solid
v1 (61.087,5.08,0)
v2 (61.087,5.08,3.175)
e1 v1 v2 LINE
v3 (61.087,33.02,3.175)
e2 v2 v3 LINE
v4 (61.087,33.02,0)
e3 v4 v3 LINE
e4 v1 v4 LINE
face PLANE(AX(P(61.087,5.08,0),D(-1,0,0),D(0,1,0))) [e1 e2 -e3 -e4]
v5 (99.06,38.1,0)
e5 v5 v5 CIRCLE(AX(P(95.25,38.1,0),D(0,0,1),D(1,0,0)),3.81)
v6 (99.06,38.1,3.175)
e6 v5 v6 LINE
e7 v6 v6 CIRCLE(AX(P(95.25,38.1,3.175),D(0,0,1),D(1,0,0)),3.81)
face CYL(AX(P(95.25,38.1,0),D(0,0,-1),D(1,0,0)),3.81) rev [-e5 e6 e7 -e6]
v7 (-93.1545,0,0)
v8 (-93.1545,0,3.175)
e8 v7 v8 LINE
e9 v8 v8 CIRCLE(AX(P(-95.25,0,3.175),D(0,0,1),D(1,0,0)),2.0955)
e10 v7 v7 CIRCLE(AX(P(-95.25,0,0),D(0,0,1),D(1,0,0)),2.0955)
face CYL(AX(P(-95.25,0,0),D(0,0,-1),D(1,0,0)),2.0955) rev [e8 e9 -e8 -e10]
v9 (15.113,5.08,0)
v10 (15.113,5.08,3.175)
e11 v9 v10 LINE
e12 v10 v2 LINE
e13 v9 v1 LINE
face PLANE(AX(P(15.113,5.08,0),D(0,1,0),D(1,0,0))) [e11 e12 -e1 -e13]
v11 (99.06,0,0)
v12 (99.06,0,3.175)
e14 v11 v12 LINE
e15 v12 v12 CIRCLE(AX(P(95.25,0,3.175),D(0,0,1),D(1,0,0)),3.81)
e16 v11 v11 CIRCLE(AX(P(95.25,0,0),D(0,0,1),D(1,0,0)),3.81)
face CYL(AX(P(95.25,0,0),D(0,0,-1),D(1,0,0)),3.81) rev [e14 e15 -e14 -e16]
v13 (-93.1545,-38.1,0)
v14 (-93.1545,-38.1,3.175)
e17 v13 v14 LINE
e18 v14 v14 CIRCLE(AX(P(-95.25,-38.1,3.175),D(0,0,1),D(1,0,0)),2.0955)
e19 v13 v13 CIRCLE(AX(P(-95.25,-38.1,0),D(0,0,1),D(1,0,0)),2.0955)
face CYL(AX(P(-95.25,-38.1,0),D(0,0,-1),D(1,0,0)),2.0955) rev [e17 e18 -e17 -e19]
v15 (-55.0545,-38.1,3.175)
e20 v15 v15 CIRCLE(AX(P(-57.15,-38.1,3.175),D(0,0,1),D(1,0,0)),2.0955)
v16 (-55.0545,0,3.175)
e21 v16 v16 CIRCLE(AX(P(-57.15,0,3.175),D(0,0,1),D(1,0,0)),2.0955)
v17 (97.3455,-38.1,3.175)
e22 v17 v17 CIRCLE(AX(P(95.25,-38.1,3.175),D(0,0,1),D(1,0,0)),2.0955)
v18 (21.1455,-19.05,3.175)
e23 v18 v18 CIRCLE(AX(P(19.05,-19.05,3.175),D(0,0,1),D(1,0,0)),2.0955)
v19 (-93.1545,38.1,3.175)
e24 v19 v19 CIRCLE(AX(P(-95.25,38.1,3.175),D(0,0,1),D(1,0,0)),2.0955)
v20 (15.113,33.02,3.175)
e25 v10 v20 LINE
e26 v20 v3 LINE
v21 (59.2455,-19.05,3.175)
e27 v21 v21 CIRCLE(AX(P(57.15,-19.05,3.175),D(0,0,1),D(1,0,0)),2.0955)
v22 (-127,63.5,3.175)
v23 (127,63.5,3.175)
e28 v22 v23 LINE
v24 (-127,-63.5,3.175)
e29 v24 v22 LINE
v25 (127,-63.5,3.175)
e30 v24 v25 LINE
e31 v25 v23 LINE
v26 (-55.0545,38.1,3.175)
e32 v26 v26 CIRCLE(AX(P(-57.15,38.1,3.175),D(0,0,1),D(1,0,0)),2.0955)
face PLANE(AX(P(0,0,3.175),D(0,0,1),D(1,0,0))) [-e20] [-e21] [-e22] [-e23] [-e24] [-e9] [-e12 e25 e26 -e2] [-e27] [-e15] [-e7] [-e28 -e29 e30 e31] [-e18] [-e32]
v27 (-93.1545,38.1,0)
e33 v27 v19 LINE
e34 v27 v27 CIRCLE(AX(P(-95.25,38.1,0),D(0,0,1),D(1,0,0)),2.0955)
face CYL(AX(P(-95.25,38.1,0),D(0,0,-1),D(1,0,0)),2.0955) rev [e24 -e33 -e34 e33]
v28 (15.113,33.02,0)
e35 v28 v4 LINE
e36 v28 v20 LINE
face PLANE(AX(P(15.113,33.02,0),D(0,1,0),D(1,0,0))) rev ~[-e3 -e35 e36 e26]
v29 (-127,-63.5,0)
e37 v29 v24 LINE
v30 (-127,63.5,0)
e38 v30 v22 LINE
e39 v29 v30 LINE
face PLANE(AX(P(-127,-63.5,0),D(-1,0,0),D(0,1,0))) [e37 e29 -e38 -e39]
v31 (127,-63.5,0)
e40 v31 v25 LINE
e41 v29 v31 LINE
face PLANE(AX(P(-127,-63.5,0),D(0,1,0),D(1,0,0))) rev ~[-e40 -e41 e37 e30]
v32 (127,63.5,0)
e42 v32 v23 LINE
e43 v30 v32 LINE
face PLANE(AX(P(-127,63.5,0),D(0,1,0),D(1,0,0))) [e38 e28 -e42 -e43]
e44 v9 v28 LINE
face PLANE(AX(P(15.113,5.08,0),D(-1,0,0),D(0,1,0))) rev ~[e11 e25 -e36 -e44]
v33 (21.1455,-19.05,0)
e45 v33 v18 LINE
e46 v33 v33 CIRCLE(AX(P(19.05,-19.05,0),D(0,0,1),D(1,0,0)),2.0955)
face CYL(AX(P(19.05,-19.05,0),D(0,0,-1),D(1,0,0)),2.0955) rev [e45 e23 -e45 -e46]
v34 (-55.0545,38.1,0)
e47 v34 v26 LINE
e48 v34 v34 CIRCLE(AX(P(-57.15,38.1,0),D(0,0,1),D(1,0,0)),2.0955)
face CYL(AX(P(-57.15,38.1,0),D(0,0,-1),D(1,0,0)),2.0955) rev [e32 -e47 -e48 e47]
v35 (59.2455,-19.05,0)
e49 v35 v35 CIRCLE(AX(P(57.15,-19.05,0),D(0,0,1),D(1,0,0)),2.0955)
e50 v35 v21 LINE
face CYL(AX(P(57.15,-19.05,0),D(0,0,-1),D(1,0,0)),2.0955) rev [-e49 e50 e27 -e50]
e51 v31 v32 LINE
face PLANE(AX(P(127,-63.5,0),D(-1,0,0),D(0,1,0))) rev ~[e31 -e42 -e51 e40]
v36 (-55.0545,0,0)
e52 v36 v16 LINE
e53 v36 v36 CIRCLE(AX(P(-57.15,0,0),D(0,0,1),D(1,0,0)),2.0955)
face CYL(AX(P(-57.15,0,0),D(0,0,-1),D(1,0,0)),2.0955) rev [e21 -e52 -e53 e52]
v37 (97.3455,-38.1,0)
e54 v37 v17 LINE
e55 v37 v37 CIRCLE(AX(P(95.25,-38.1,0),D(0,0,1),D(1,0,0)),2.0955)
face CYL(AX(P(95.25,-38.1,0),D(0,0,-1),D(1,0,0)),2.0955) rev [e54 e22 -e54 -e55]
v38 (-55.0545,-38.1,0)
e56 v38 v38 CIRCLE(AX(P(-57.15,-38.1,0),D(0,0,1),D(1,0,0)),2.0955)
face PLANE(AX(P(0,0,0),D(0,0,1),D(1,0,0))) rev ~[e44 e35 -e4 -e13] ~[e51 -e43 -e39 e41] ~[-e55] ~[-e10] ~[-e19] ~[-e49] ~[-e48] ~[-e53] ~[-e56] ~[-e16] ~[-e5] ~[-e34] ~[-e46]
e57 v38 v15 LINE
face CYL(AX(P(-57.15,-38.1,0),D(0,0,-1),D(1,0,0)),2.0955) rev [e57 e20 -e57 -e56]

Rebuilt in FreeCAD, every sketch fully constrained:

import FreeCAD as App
import Part
import Sketcher
Q = App.Units.Quantity


def add_polygon(sketch, points):
    """Adds a closed chain of lines whose ends are joined by coincident constraints."""
    first, n = sketch.GeometryCount, len(points)
    for a, b in zip(points, points[1:] + points[:1]):
        sketch.addGeometry(Part.LineSegment(App.Vector(*a, 0), App.Vector(*b, 0)), False)
    for i in range(n):
        sketch.addConstraint(Sketcher.Constraint("Coincident", first + i, 2, first + (i + 1) % n, 1))

doc = App.newDocument("Part")
params = doc.addObject("Spreadsheet::Sheet", "Params")
for row, (alias, value) in enumerate([
    ("sketch1_diameter", "0.3 in"),
    ("sketch1_width", "10 in"),
    ("sketch1_height", "5 in"),
    ("sketch1_diameter2", "0.165 in"),
    ("sketch1_height2", "1.1 in"),
    ("pad1_length", "0.125 in"),
], start=1):
    params.set(f"A{row}", alias)
    params.set(f"B{row}", "=" + value)
    params.setAlias(f"B{row}", alias)

body = doc.addObject("PartDesign::Body", "Body")

# Sketch on XY plane
sketch1 = body.newObject("Sketcher::SketchObject", "Sketch")
sketch1.AttachmentSupport = (doc.getObject("XY_Plane"), [""])
sketch1.MapMode = "FlatFace"
add_polygon(sketch1, [(-127, 63.5), (-127, -63.5), (127, -63.5), (127, 63.5)])  # lines 0-3
sketch1.addGeometry(Part.Circle(App.Vector(-95.25, -38.1, 0), App.Vector(0, 0, 1), 2.0955), False)  # 4
sketch1.addGeometry(Part.Circle(App.Vector(-57.15, -38.1, 0), App.Vector(0, 0, 1), 2.0955), False)  # 5
sketch1.addGeometry(Part.Circle(App.Vector(-95.25, 0, 0), App.Vector(0, 0, 1), 2.0955), False)  # 6
sketch1.addGeometry(Part.Circle(App.Vector(-57.15, 0, 0), App.Vector(0, 0, 1), 2.0955), False)  # 7
sketch1.addGeometry(Part.Circle(App.Vector(95.25, -38.1, 0), App.Vector(0, 0, 1), 2.0955), False)  # 8
sketch1.addGeometry(Part.Circle(App.Vector(19.05, -19.05, 0), App.Vector(0, 0, 1), 2.0955), False)  # 9
sketch1.addGeometry(Part.Circle(App.Vector(57.15, -19.05, 0), App.Vector(0, 0, 1), 2.0955), False)  # 10
sketch1.addGeometry(Part.Circle(App.Vector(95.25, 0, 0), App.Vector(0, 0, 1), 3.81), False)  # 11
sketch1.addGeometry(Part.Circle(App.Vector(-95.25, 38.1, 0), App.Vector(0, 0, 1), 2.0955), False)  # 12
sketch1.addGeometry(Part.Circle(App.Vector(-57.15, 38.1, 0), App.Vector(0, 0, 1), 2.0955), False)  # 13
add_polygon(sketch1, [(61.087, 5.08), (15.113, 5.08), (15.113, 33.02), (61.087, 33.02)])  # lines 14-17
sketch1.addGeometry(Part.Circle(App.Vector(95.25, 38.1, 0), App.Vector(0, 0, 1), 3.81), False)  # 18
sketch1.addConstraint([
    Sketcher.Constraint("Vertical", 0),
    Sketcher.Constraint("Horizontal", 1),
    Sketcher.Constraint("Vertical", 2),
    Sketcher.Constraint("Horizontal", 3),
    Sketcher.Constraint("Horizontal", 14),
    Sketcher.Constraint("Vertical", 15),
    Sketcher.Constraint("Horizontal", 16),
    Sketcher.Constraint("Vertical", 17),
    Sketcher.Constraint("Equal", 4, 5),
    Sketcher.Constraint("Equal", 5, 6),
    Sketcher.Constraint("Equal", 6, 7),
    Sketcher.Constraint("Equal", 7, 8),
    Sketcher.Constraint("Equal", 8, 9),
    Sketcher.Constraint("Equal", 9, 10),
    Sketcher.Constraint("Equal", 10, 12),
    Sketcher.Constraint("Equal", 12, 13),
    Sketcher.Constraint("Equal", 11, 18),
    Sketcher.Constraint("Symmetric", 6, 3, 11, 3, -1, 1),
    Sketcher.Constraint("Symmetric", 8, 3, 12, 3, -1, 1),
    Sketcher.Constraint("Symmetric", 4, 3, 18, 3, -1, 1),
    Sketcher.Constraint("Symmetric", 0, 2, 2, 2, -1, 1),
    Sketcher.Constraint("Symmetric", 4, 3, 8, 3, -2),
    Sketcher.Constraint("Symmetric", 5, 3, 13, 3, -1),
    Sketcher.Constraint("PointOnObject", 6, 3, -1),
    Sketcher.Constraint("PointOnObject", 7, 3, -1),
    Sketcher.Constraint("Horizontal", 4, 3, 5, 3),
    Sketcher.Constraint("Horizontal", 9, 3, 10, 3),
    Sketcher.Constraint("Vertical", 4, 3, 6, 3),
    Sketcher.Constraint("Vertical", 5, 3, 7, 3),
    Sketcher.Constraint("Diameter", 11, Q("0.3 in")),
    Sketcher.Constraint("DistanceX", 1, 1, 1, 2, Q("10 in")),
    Sketcher.Constraint("DistanceY", 0, 2, 0, 1, Q("5 in")),
    Sketcher.Constraint("Diameter", 4, Q("0.165 in")),
    Sketcher.Constraint("DistanceY", 15, 1, 15, 2, Q("1.1 in")),
    Sketcher.Constraint("DistanceX", 5, 3, 8, 3, Q("6 in")),
    Sketcher.Constraint("DistanceX", 5, 3, 9, 3, Q("3 in")),
    Sketcher.Constraint("DistanceX", 4, 3, 10, 3, Q("6 in")),
    Sketcher.Constraint("DistanceY", 4, 3, 12, 3, Q("3 in")),
    Sketcher.Constraint("DistanceX", 14, 2, 14, 1, Q("1.81 in")),
    Sketcher.Constraint("DistanceY", -1, 1, 14, 2, Q("0.2 in")),
    Sketcher.Constraint("DistanceX", 4, 3, 5, 3, Q("1.5 in")),
    Sketcher.Constraint("DistanceY", 9, 3, -1, 1, Q("0.75 in")),
    Sketcher.Constraint("DistanceX", -1, 1, 14, 2, Q("0.595 in")),
])
sketch1.setExpression("Constraints[37]", "Params.sketch1_diameter")
sketch1.setExpression("Constraints[38]", "Params.sketch1_width")
sketch1.setExpression("Constraints[39]", "Params.sketch1_height")
sketch1.setExpression("Constraints[40]", "Params.sketch1_diameter2")
sketch1.setExpression("Constraints[41]", "Params.sketch1_height2")
pad1 = body.newObject("PartDesign::Pad", "Pad")
pad1.Profile = sketch1
pad1.setExpression("Length", "Params.pad1_length")

doc.recompute()
